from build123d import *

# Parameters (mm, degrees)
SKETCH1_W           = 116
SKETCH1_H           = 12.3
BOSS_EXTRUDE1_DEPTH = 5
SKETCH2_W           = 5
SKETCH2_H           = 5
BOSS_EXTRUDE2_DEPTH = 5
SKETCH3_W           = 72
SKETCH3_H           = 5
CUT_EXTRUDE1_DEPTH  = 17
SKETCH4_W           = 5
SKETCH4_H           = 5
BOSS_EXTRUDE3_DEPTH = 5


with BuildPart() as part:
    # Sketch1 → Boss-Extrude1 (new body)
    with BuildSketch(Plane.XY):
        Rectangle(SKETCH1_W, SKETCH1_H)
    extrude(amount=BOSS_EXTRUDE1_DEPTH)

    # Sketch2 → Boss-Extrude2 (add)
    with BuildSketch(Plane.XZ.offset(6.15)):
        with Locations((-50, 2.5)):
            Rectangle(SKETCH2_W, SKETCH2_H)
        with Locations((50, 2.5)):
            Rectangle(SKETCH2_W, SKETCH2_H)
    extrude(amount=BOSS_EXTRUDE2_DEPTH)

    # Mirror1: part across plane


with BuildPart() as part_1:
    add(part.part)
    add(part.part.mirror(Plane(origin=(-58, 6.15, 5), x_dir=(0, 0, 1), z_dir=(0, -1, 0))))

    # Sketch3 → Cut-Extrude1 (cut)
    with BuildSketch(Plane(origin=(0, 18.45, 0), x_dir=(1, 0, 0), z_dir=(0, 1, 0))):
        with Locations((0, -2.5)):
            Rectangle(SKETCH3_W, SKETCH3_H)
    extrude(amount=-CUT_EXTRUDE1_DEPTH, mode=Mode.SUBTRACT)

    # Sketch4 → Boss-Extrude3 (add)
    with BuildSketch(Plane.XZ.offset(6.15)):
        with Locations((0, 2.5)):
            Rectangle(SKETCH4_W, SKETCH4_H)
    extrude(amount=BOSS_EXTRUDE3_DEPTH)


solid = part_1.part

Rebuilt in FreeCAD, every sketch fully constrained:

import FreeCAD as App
import Part
import Sketcher

doc = App.newDocument("Part")
params = doc.addObject("Spreadsheet::Sheet", "Params")
for row, (alias, value) in enumerate([
    ("sketch1_width", "116 mm"),
    ("sketch1_height", "12.3 mm"),
    ("pad1_length", "5 mm"),
    ("sketch2_width", "5 mm"),
    ("pad2_length", "5 mm"),
    ("sketch3_width", "72 mm"),
    ("sketch3_height", "5 mm"),
    ("pocket1_length", "17 mm"),
    ("sketch4_width", "5 mm"),
    ("pad3_length", "5 mm"),
], start=1):
    params.set(f"A{row}", alias)
    params.set(f"B{row}", "=" + value)
    params.setAlias(f"B{row}", alias)

body = doc.addObject("PartDesign::Body", "Body")

sketch1 = doc.addObject("Sketcher::SketchObject", "Sketch")
body.addObject(sketch1)
sketch1.AttachmentSupport = (doc.XY_Plane, [""])
sketch1.MapMode = "FlatFace"
sketch1.addGeometry(Part.LineSegment(App.Vector(-58, 6, 0), App.Vector(-58, -6, 0)), False)
sketch1.addGeometry(Part.LineSegment(App.Vector(-58, -6, 0), App.Vector(58, -6, 0)), False)
sketch1.addGeometry(Part.LineSegment(App.Vector(58, -6, 0), App.Vector(58, 6, 0)), False)
sketch1.addGeometry(Part.LineSegment(App.Vector(58, 6, 0), App.Vector(-58, 6, 0)), False)
sketch1.addConstraint(Sketcher.Constraint("Coincident", 0, 2, 1, 1))
sketch1.addConstraint(Sketcher.Constraint("Coincident", 1, 2, 2, 1))
sketch1.addConstraint(Sketcher.Constraint("Coincident", 2, 2, 3, 1))
sketch1.addConstraint(Sketcher.Constraint("Coincident", 3, 2, 0, 1))
sketch1.addConstraint(Sketcher.Constraint("Vertical", 0))
sketch1.addConstraint(Sketcher.Constraint("Horizontal", 1))
sketch1.addConstraint(Sketcher.Constraint("Vertical", 2))
sketch1.addConstraint(Sketcher.Constraint("Horizontal", 3))
sketch1.addConstraint(Sketcher.Constraint("Symmetric", 0, 2, 2, 2, -1, 1))
sketch1.addConstraint(Sketcher.Constraint("DistanceX", 1, 1, 1, 2, 116.0))
sketch1.addConstraint(Sketcher.Constraint("DistanceY", 0, 2, 0, 1, 12.3))
sketch1.setExpression("Constraints[9]", "Params.sketch1_width")
sketch1.setExpression("Constraints[10]", "Params.sketch1_height")
pad1 = doc.addObject("PartDesign::Pad", "Pad")
body.addObject(pad1)
pad1.Profile = sketch1
pad1.setExpression("Length", "Params.pad1_length")

sketch2 = doc.addObject("Sketcher::SketchObject", "Sketch001")
body.addObject(sketch2)
sketch2.AttachmentSupport = (doc.XZ_Plane, [""])
sketch2.MapMode = "FlatFace"
sketch2.AttachmentOffset = App.Placement(App.Vector(0, 0, 6.15), App.Rotation())
sketch2.addGeometry(Part.LineSegment(App.Vector(-52, 5, 0), App.Vector(-52, 0, 0)), False)
sketch2.addGeometry(Part.LineSegment(App.Vector(-52, 0, 0), App.Vector(-48, 0, 0)), False)
sketch2.addGeometry(Part.LineSegment(App.Vector(-48, 0, 0), App.Vector(-48, 5, 0)), False)
sketch2.addGeometry(Part.LineSegment(App.Vector(-48, 5, 0), App.Vector(-52, 5, 0)), False)
sketch2.addGeometry(Part.LineSegment(App.Vector(48, 5, 0), App.Vector(48, 0, 0)), False)
sketch2.addGeometry(Part.LineSegment(App.Vector(48, 0, 0), App.Vector(52, 0, 0)), False)
sketch2.addGeometry(Part.LineSegment(App.Vector(52, 0, 0), App.Vector(52, 5, 0)), False)
sketch2.addGeometry(Part.LineSegment(App.Vector(52, 5, 0), App.Vector(48, 5, 0)), False)
sketch2.addConstraint(Sketcher.Constraint("Coincident", 0, 2, 1, 1))
sketch2.addConstraint(Sketcher.Constraint("Coincident", 1, 2, 2, 1))
sketch2.addConstraint(Sketcher.Constraint("Coincident", 2, 2, 3, 1))
sketch2.addConstraint(Sketcher.Constraint("Coincident", 3, 2, 0, 1))
sketch2.addConstraint(Sketcher.Constraint("Coincident", 4, 2, 5, 1))
sketch2.addConstraint(Sketcher.Constraint("Coincident", 5, 2, 6, 1))
sketch2.addConstraint(Sketcher.Constraint("Coincident", 6, 2, 7, 1))
sketch2.addConstraint(Sketcher.Constraint("Coincident", 7, 2, 4, 1))
sketch2.addConstraint(Sketcher.Constraint("Vertical", 0))
sketch2.addConstraint(Sketcher.Constraint("Horizontal", 1))
sketch2.addConstraint(Sketcher.Constraint("Vertical", 2))
sketch2.addConstraint(Sketcher.Constraint("Horizontal", 3))
sketch2.addConstraint(Sketcher.Constraint("Vertical", 4))
sketch2.addConstraint(Sketcher.Constraint("Horizontal", 5))
sketch2.addConstraint(Sketcher.Constraint("Vertical", 6))
sketch2.addConstraint(Sketcher.Constraint("Horizontal", 7))
sketch2.addConstraint(Sketcher.Constraint("Symmetric", 1, 2, 4, 2, -1, 1))
sketch2.addConstraint(Sketcher.Constraint("Symmetric", 0, 2, 5, 2, -2))
sketch2.addConstraint(Sketcher.Constraint("Horizontal", 3, 2, 6, 2))
sketch2.addConstraint(Sketcher.Constraint("Equal", 7, 0))
sketch2.addConstraint(Sketcher.Constraint("DistanceX", 1, 1, 1, 2, 5.0))
sketch2.addConstraint(Sketcher.Constraint("DistanceX", 1, 2, 4, 2, 95.0))
sketch2.setExpression("Constraints[20]", "Params.sketch2_width")
pad2 = doc.addObject("PartDesign::Pad", "Pad001")
body.addObject(pad2)
pad2.Profile = sketch2
pad2.setExpression("Length", "Params.pad2_length")
body2 = doc.addObject("PartDesign::Body", "Body001")
doc.recompute()

body2.BaseFeature = body
doc.recompute()

mirroring = doc.addObject("Part::Mirroring", "Mirroring")
mirroring.Source = body
mirroring.Base = App.Vector(-58, 6.15, 5)
mirroring.Normal = App.Vector(0, -1, 0)
body3 = doc.addObject("PartDesign::Body", "Body002")
body3.BaseFeature = mirroring
boolean = doc.addObject("PartDesign::Boolean", "Boolean")
body2.addObject(boolean)
boolean.Type = "Fuse"
boolean.addObjects([body3])
doc.recompute()

sketch3 = doc.addObject("Sketcher::SketchObject", "Sketch002")
body2.addObject(sketch3)
sketch3.AttachmentSupport = (doc.getObject("XZ_Plane001"), [""])
sketch3.MapMode = "FlatFace"
sketch3.AttachmentOffset = App.Placement(App.Vector(0, 0, -18.45), App.Rotation())
sketch3.addGeometry(Part.LineSegment(App.Vector(-36, 0, 0), App.Vector(-36, 5, 0)), False)
sketch3.addGeometry(Part.LineSegment(App.Vector(-36, 5, 0), App.Vector(36, 5, 0)), False)
sketch3.addGeometry(Part.LineSegment(App.Vector(36, 5, 0), App.Vector(36, 0, 0)), False)
sketch3.addGeometry(Part.LineSegment(App.Vector(36, 0, 0), App.Vector(-36, 0, 0)), False)
sketch3.addConstraint(Sketcher.Constraint("Coincident", 0, 2, 1, 1))
sketch3.addConstraint(Sketcher.Constraint("Coincident", 1, 2, 2, 1))
sketch3.addConstraint(Sketcher.Constraint("Coincident", 2, 2, 3, 1))
sketch3.addConstraint(Sketcher.Constraint("Coincident", 3, 2, 0, 1))
sketch3.addConstraint(Sketcher.Constraint("Vertical", 0))
sketch3.addConstraint(Sketcher.Constraint("Horizontal", 1))
sketch3.addConstraint(Sketcher.Constraint("Vertical", 2))
sketch3.addConstraint(Sketcher.Constraint("Horizontal", 3))
sketch3.addConstraint(Sketcher.Constraint("Symmetric", 2, 2, 3, 2, -1, 1))
sketch3.addConstraint(Sketcher.Constraint("DistanceX", 1, 1, 1, 2, 72.0))
sketch3.addConstraint(Sketcher.Constraint("DistanceY", 0, 1, 0, 2, 5.0))
sketch3.setExpression("Constraints[9]", "Params.sketch3_width")
sketch3.setExpression("Constraints[10]", "Params.sketch3_height")
pocket1 = doc.addObject("PartDesign::Pocket", "Pocket")
body2.addObject(pocket1)
pocket1.Profile = sketch3
pocket1.setExpression("Length", "Params.pocket1_length")
pocket1.Reversed = True

sketch4 = doc.addObject("Sketcher::SketchObject", "Sketch003")
body2.addObject(sketch4)
sketch4.AttachmentSupport = (doc.getObject("XZ_Plane001"), [""])
sketch4.MapMode = "FlatFace"
sketch4.AttachmentOffset = App.Placement(App.Vector(0, 0, 6.15), App.Rotation())
sketch4.addGeometry(Part.LineSegment(App.Vector(-2, 5, 0), App.Vector(-2, 0, 0)), False)
sketch4.addGeometry(Part.LineSegment(App.Vector(-2, 0, 0), App.Vector(2, 0, 0)), False)
sketch4.addGeometry(Part.LineSegment(App.Vector(2, 0, 0), App.Vector(2, 5, 0)), False)
sketch4.addGeometry(Part.LineSegment(App.Vector(2, 5, 0), App.Vector(-2, 5, 0)), False)
sketch4.addConstraint(Sketcher.Constraint("Coincident", 0, 2, 1, 1))
sketch4.addConstraint(Sketcher.Constraint("Coincident", 1, 2, 2, 1))
sketch4.addConstraint(Sketcher.Constraint("Coincident", 2, 2, 3, 1))
sketch4.addConstraint(Sketcher.Constraint("Coincident", 3, 2, 0, 1))
sketch4.addConstraint(Sketcher.Constraint("Vertical", 0))
sketch4.addConstraint(Sketcher.Constraint("Horizontal", 1))
sketch4.addConstraint(Sketcher.Constraint("Vertical", 2))
sketch4.addConstraint(Sketcher.Constraint("Horizontal", 3))
sketch4.addConstraint(Sketcher.Constraint("Symmetric", 0, 2, 1, 2, -1, 1))
sketch4.addConstraint(Sketcher.Constraint("Equal", 3, 0))
sketch4.addConstraint(Sketcher.Constraint("DistanceX", 1, 1, 1, 2, 5.0))
sketch4.setExpression("Constraints[10]", "Params.sketch4_width")
pad3 = doc.addObject("PartDesign::Pad", "Pad002")
body2.addObject(pad3)
pad3.Profile = sketch4
pad3.setExpression("Length", "Params.pad3_length")
mirroring.Visibility = False

doc.recompute()
